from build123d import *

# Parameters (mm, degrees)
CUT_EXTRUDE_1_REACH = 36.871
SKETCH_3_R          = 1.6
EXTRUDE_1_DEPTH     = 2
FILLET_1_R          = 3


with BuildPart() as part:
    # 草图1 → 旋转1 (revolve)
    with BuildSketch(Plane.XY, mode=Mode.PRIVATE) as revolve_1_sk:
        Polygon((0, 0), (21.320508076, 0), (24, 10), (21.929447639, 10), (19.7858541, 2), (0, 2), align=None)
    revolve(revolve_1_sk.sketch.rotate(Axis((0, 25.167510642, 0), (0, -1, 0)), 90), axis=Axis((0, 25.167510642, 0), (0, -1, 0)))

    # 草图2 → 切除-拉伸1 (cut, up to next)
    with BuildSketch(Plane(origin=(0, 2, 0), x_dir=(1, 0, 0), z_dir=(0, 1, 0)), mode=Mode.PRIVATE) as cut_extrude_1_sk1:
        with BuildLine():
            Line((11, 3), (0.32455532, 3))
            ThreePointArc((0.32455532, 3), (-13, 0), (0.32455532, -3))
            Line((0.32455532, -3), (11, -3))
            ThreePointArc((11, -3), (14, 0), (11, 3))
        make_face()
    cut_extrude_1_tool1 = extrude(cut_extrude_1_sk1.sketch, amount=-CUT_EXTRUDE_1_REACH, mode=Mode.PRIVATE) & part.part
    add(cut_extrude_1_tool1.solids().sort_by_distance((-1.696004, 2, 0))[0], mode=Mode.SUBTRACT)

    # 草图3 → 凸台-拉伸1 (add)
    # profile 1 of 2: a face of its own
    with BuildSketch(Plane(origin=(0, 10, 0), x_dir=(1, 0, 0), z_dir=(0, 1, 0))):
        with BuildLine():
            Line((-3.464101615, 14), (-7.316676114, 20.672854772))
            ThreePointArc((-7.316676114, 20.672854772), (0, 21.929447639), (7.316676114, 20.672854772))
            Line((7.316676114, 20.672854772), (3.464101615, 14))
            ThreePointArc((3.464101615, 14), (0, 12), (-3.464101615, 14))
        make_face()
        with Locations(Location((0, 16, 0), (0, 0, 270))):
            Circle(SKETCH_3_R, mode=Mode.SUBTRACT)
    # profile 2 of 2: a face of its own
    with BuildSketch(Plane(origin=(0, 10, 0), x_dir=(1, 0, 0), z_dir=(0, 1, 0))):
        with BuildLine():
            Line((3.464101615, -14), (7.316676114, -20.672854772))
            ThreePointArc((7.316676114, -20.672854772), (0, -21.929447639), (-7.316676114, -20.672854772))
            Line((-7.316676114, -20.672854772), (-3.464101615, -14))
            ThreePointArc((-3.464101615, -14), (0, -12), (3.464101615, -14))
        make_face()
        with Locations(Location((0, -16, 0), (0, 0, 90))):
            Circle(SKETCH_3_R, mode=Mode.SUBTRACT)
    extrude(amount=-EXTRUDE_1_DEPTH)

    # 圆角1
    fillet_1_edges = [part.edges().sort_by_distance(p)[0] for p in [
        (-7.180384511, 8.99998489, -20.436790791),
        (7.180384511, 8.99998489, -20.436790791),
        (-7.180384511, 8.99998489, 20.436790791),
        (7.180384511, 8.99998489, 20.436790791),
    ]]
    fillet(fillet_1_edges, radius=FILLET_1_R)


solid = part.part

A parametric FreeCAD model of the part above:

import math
import FreeCAD as App
import Part
import Sketcher
Q = App.Units.Quantity


def edges_at(feature, points):
    """Names of the edges that pass closest to the given points."""
    edges = feature.Shape.Edges
    near = lambda p: min(range(len(edges)), key=lambda i: edges[i].distToShape(Part.Vertex(*p))[0])
    return sorted({f"Edge{near(p) + 1}" for p in points})

doc = App.newDocument("Part")
body = doc.addObject("PartDesign::Body", "Body")

# Sketch on XY plane
sketch1 = body.newObject("Sketcher::SketchObject", "Sketch")
sketch1.AttachmentSupport = (doc.getObject("XY_Plane"), [""])
sketch1.MapMode = "FlatFace"
sketch1.addGeometry(Part.LineSegment(App.Vector(0, 0, 0), App.Vector(21.3, 0, 0)), False)
sketch1.addGeometry(Part.LineSegment(App.Vector(21.3, 0, 0), App.Vector(24, 10, 0)), False)
sketch1.addGeometry(Part.LineSegment(App.Vector(24, 10, 0), App.Vector(21.9, 10, 0)), False)
sketch1.addGeometry(Part.LineSegment(App.Vector(21.9, 10, 0), App.Vector(19.8, 2, 0)), False)
sketch1.addGeometry(Part.LineSegment(App.Vector(19.8, 2, 0), App.Vector(0, 2, 0)), False)
sketch1.addGeometry(Part.LineSegment(App.Vector(0, 2, 0), App.Vector(0, 0, 0)), False)
sketch1.addConstraint(Sketcher.Constraint("Coincident", 0, 2, 1, 1))
sketch1.addConstraint(Sketcher.Constraint("Coincident", 1, 2, 2, 1))
sketch1.addConstraint(Sketcher.Constraint("Coincident", 2, 2, 3, 1))
sketch1.addConstraint(Sketcher.Constraint("Coincident", 3, 2, 4, 1))
sketch1.addConstraint(Sketcher.Constraint("Coincident", 4, 2, 5, 1))
sketch1.addConstraint(Sketcher.Constraint("Coincident", 5, 2, 0, 1))
sketch1.addConstraint(Sketcher.Constraint("Horizontal", 0))
sketch1.addConstraint(Sketcher.Constraint("Horizontal", 2))
sketch1.addConstraint(Sketcher.Constraint("Horizontal", 4))
sketch1.addConstraint(Sketcher.Constraint("Vertical", 5))
sketch1.addConstraint(Sketcher.Constraint("Coincident", 5, 2, -1, 1))
sketch1.addConstraint(Sketcher.Constraint("Parallel", 1, 3))
sketch1.addConstraint(Sketcher.Constraint("DistanceY", 5, 2, 5, 1, Q("2 mm")))
sketch1.addConstraint(Sketcher.Constraint("Angle", 1, Q("75 deg")))
sketch1.addConstraint(Sketcher.Constraint("DistanceX", -1, 1, 1, 2, Q("24 mm")))
sketch1.addConstraint(Sketcher.Constraint("DistanceY", -1, 1, 1, 2, Q("10 mm")))
sketch1.addConstraint(Sketcher.Constraint("DistanceX", 2, 2, 2, 1, Q("2.070552 mm")))
revolution = body.newObject("PartDesign::Revolution", "Revolution")
revolution.Profile = sketch1
revolution.ReferenceAxis = (sketch1, ["V_Axis"])
revolution.Angle = 360

# Sketch on XZ plane
sketch2 = body.newObject("Sketcher::SketchObject", "Sketch001")
sketch2.AttachmentSupport = (doc.getObject("XZ_Plane"), [""])
sketch2.MapMode = "FlatFace"
sketch2.AttachmentOffset = App.Placement(App.Vector(0, 0, -2), App.Rotation())
sketch2.addGeometry(Part.LineSegment(App.Vector(11, -3, 0), App.Vector(0.3, -3, 0)), False)
sketch2.addGeometry(Part.ArcOfCircle(Part.Circle(App.Vector(-6, 0, 0), App.Vector(0, 0, 1), 7), math.radians(25), math.radians(335)), False)
sketch2.addGeometry(Part.LineSegment(App.Vector(0.3, 3, 0), App.Vector(11, 3, 0)), False)
sketch2.addGeometry(Part.ArcOfCircle(Part.Circle(App.Vector(11, 0, 0), App.Vector(0, 0, 1), 3), math.radians(-90), math.radians(90)), False)
sketch2.addConstraint(Sketcher.Constraint("Coincident", 0, 2, 1, 2))
sketch2.addConstraint(Sketcher.Constraint("Coincident", 1, 1, 2, 1))
sketch2.addConstraint(Sketcher.Constraint("Tangent", 2, 2, 3, 2))
sketch2.addConstraint(Sketcher.Constraint("Tangent", 3, 1, 0, 1))
sketch2.addConstraint(Sketcher.Constraint("Horizontal", 0))
sketch2.addConstraint(Sketcher.Constraint("Horizontal", 2))
sketch2.addConstraint(Sketcher.Constraint("Symmetric", 0, 2, 1, 1, -1))
sketch2.addConstraint(Sketcher.Constraint("Radius", 1, Q("7 mm")))
sketch2.addConstraint(Sketcher.Constraint("Radius", 3, Q("3 mm")))
sketch2.addConstraint(Sketcher.Constraint("DistanceX", 1, 3, -1, 1, Q("6 mm")))
sketch2.addConstraint(Sketcher.Constraint("DistanceX", -1, 1, 3, 3, Q("11 mm")))
pocket1 = body.newObject("PartDesign::Pocket", "Pocket")
pocket1.Profile = sketch2
pocket1.Type = "UpToFirst"
pocket1.Reversed = True

# Sketch on XZ plane
sketch3 = body.newObject("Sketcher::SketchObject", "Sketch002")
sketch3.AttachmentSupport = (doc.getObject("XZ_Plane"), [""])
sketch3.MapMode = "FlatFace"
sketch3.AttachmentOffset = App.Placement(App.Vector(0, 0, -10), App.Rotation())
sketch3.addGeometry(Part.LineSegment(App.Vector(-7.3, -20.7, 0), App.Vector(-3.5, -14, 0)), False)
sketch3.addGeometry(Part.ArcOfCircle(Part.Circle(App.Vector(0, -16, 0), App.Vector(0, 0, 1), 4), math.radians(30), math.radians(150)), False)
sketch3.addGeometry(Part.LineSegment(App.Vector(3.5, -14, 0), App.Vector(7.3, -20.7, 0)), False)
sketch3.addGeometry(Part.ArcOfCircle(Part.Circle(App.Vector(0, 0, 0), App.Vector(0, 0, 1), 21.9), math.radians(-109), math.radians(-71)), False)
sketch3.addGeometry(Part.Circle(App.Vector(0, -16, 0), App.Vector(0, 0, 1), 1.6), False)
sketch3.addGeometry(Part.LineSegment(App.Vector(7.3, 20.7, 0), App.Vector(3.5, 14, 0)), False)
sketch3.addGeometry(Part.ArcOfCircle(Part.Circle(App.Vector(0, 16, 0), App.Vector(0, 0, 1), 4), math.radians(-150), math.radians(-30)), False)
sketch3.addGeometry(Part.LineSegment(App.Vector(-3.5, 14, 0), App.Vector(-7.3, 20.7, 0)), False)
sketch3.addGeometry(Part.ArcOfCircle(Part.Circle(App.Vector(0, 0, 0), App.Vector(0, 0, 1), 21.9), math.radians(71), math.radians(109)), False)
sketch3.addGeometry(Part.Circle(App.Vector(0, 16, 0), App.Vector(0, 0, 1), 1.6), False)
sketch3.addConstraint(Sketcher.Constraint("Tangent", 0, 2, 1, 2))
sketch3.addConstraint(Sketcher.Constraint("Tangent", 1, 1, 2, 1))
sketch3.addConstraint(Sketcher.Constraint("Coincident", 2, 2, 3, 2))
sketch3.addConstraint(Sketcher.Constraint("Coincident", 3, 1, 0, 1))
sketch3.addConstraint(Sketcher.Constraint("Tangent", 5, 2, 6, 2))
sketch3.addConstraint(Sketcher.Constraint("Tangent", 6, 1, 7, 1))
sketch3.addConstraint(Sketcher.Constraint("Coincident", 7, 2, 8, 2))
sketch3.addConstraint(Sketcher.Constraint("Coincident", 8, 1, 5, 1))
sketch3.addConstraint(Sketcher.Constraint("Coincident", 3, 3, -1, 1))
sketch3.addConstraint(Sketcher.Constraint("Coincident", 8, 3, -1, 1))
sketch3.addConstraint(Sketcher.Constraint("Coincident", 4, 3, 1, 3))
sketch3.addConstraint(Sketcher.Constraint("Coincident", 9, 3, 6, 3))
sketch3.addConstraint(Sketcher.Constraint("Equal", 1, 6))
sketch3.addConstraint(Sketcher.Constraint("Equal", 3, 8))
sketch3.addConstraint(Sketcher.Constraint("Equal", 4, 9))
sketch3.addConstraint(Sketcher.Constraint("Symmetric", 1, 3, 6, 3, -1, 1))
sketch3.addConstraint(Sketcher.Constraint("Symmetric", 0, 2, 1, 1, -2))
sketch3.addConstraint(Sketcher.Constraint("Parallel", 0, 5))
sketch3.addConstraint(Sketcher.Constraint("Parallel", 2, 7))
sketch3.addConstraint(Sketcher.Constraint("Radius", 1, Q("4 mm")))
sketch3.addConstraint(Sketcher.Constraint("Diameter", 4, Q("3.2 mm")))
sketch3.addConstraint(Sketcher.Constraint("Angle", 0, Q("60 deg")))
sketch3.addConstraint(Sketcher.Constraint("DistanceY", 1, 3, -1, 1, Q("16 mm")))
sketch3.addConstraint(Sketcher.Constraint("Radius", 3, Q("21.929448 mm")))
pad1 = body.newObject("PartDesign::Pad", "Pad")
pad1.Profile = sketch3
pad1.Length = 2
doc.recompute()

fillet = body.newObject("PartDesign::Fillet", "Fillet")
fillet.Base = (pad1, edges_at(pad1, [
    (-7.18, 9, -20.437),
    (7.18, 9, -20.437),
    (-7.18, 9, 20.437),
    (7.18, 9, 20.437),
]))
fillet.Radius = 3

doc.recompute()
